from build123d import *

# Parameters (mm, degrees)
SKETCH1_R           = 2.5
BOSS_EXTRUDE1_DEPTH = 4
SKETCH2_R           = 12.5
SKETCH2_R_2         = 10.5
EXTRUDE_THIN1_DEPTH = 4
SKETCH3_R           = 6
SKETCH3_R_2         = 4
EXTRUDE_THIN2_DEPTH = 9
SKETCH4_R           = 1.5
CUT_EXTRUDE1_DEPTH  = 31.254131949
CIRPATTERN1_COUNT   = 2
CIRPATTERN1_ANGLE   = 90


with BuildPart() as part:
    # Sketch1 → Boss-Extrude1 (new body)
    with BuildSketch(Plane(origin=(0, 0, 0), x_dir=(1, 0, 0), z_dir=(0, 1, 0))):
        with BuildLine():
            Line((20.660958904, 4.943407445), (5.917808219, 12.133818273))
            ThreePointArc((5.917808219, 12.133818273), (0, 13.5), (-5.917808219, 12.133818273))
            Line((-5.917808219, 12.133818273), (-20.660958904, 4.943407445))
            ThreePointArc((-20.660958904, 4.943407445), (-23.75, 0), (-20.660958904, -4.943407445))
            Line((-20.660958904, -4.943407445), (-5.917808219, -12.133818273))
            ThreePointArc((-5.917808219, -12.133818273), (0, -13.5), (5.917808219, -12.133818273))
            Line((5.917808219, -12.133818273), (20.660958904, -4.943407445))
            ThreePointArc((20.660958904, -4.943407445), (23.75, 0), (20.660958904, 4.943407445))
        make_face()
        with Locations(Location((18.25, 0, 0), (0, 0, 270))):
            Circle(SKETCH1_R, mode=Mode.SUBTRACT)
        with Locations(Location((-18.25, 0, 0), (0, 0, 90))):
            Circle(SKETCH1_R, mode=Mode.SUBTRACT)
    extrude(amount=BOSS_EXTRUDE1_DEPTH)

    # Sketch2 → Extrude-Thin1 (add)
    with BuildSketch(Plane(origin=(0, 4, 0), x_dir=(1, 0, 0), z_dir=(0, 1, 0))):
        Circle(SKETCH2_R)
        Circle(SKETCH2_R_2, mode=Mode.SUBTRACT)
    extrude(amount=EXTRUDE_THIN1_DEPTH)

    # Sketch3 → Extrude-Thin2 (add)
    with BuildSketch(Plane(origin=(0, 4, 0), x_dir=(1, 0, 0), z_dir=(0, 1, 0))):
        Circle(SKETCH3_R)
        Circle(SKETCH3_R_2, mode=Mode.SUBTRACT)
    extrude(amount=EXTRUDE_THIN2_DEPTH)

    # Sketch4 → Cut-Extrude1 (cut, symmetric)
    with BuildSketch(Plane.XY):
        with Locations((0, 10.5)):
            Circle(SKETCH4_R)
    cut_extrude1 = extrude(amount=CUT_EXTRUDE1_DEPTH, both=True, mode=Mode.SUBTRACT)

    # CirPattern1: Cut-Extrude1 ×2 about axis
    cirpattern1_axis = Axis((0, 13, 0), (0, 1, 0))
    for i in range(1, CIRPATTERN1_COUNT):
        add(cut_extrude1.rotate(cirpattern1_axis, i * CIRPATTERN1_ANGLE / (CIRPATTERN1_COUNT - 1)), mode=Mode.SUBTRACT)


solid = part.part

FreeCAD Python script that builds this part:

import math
import FreeCAD as App
import Part
import Sketcher
from FreeCAD import Vector

doc = App.newDocument("Part")
body = doc.addObject("PartDesign::Body", "Body")

# Sketch on XZ plane
sketch1 = doc.addObject("Sketcher::SketchObject", "Sketch")
body.addObject(sketch1)
sketch1.AttachmentSupport = (doc.XZ_Plane, [""])
sketch1.MapMode = "FlatFace"
sketch1.addGeometry([
    Part.LineSegment(Vector(20.7, -4.9, 0), Vector(5.9, -12.1, 0)),  # 0
    Part.ArcOfCircle(Part.Circle(Vector(0, 0, 0), Vector(0, 0, 1), 13.5), math.radians(-116), math.radians(-64)),  # 1
    Part.LineSegment(Vector(-5.9, -12.1, 0), Vector(-20.7, -4.9, 0)),  # 2
    Part.ArcOfCircle(Part.Circle(Vector(-18.2, 0, 0), Vector(0, 0, 1), 5.5), math.radians(116), math.radians(244)),  # 3
    Part.LineSegment(Vector(-20.7, 4.9, 0), Vector(-5.9, 12.1, 0)),  # 4
    Part.ArcOfCircle(Part.Circle(Vector(0, 0, 0), Vector(0, 0, 1), 13.5), math.radians(64), math.radians(116)),  # 5
    Part.LineSegment(Vector(5.9, 12.1, 0), Vector(20.7, 4.9, 0)),  # 6
    Part.ArcOfCircle(Part.Circle(Vector(18.2, 0, 0), Vector(0, 0, 1), 5.5), math.radians(-64), math.radians(64)),  # 7
    Part.Circle(Vector(-18.2, 0, 0), Vector(0, 0, 1), 2.5),  # 8
    Part.Circle(Vector(18.2, 0, 0), Vector(0, 0, 1), 2.5),  # 9
], False)
sketch1.addConstraint([
    Sketcher.Constraint("Tangent", 0, 2, 1, 2),
    Sketcher.Constraint("Tangent", 1, 1, 2, 1),
    Sketcher.Constraint("Tangent", 2, 2, 3, 2),
    Sketcher.Constraint("Tangent", 3, 1, 4, 1),
    Sketcher.Constraint("Tangent", 4, 2, 5, 2),
    Sketcher.Constraint("Tangent", 5, 1, 6, 1),
    Sketcher.Constraint("Tangent", 6, 2, 7, 2),
    Sketcher.Constraint("Tangent", 7, 1, 0, 1),
    Sketcher.Constraint("Coincident", 1, 3, -1, 1),
    Sketcher.Constraint("Coincident", 5, 3, -1, 1),
    Sketcher.Constraint("Coincident", 8, 3, 3, 3),
    Sketcher.Constraint("Coincident", 9, 3, 7, 3),
    Sketcher.Constraint("Equal", 1, 5),
    Sketcher.Constraint("Equal", 3, 7),
    Sketcher.Constraint("Equal", 8, 9),
    Sketcher.Constraint("Symmetric", 3, 3, 7, 3, -1, 1),
    Sketcher.Constraint("PointOnObject", 3, 3, -1),
    Sketcher.Constraint("Diameter", 8, 5.0),
    Sketcher.Constraint("Radius", 1, 13.5),
    Sketcher.Constraint("Radius", 3, 5.5),
    Sketcher.Constraint("DistanceX", 3, 3, 7, 3, 36.5),
])
pad1 = doc.addObject("PartDesign::Pad", "Pad")
body.addObject(pad1)
pad1.Profile = sketch1
pad1.Length = 4
pad1.Reversed = True

# Sketch on XZ plane
sketch2 = doc.addObject("Sketcher::SketchObject", "Sketch001")
body.addObject(sketch2)
sketch2.AttachmentSupport = (doc.XZ_Plane, [""])
sketch2.MapMode = "FlatFace"
sketch2.AttachmentOffset = App.Placement(Vector(0, 0, -4), App.Rotation())
sketch2.addGeometry([
    Part.Circle(Vector(0, 0, 0), Vector(0, 0, 1), 12),
    Part.Circle(Vector(0, 0, 0), Vector(0, 0, 1), 10),
], False)
sketch2.addConstraint([
    Sketcher.Constraint("Coincident", 0, 3, -1, 1),
    Sketcher.Constraint("Coincident", 1, 3, -1, 1),
    Sketcher.Constraint("Diameter", 0, 25.0),
    Sketcher.Constraint("Diameter", 1, 21.0),
])
pad2 = doc.addObject("PartDesign::Pad", "Pad001")
body.addObject(pad2)
pad2.Profile = sketch2
pad2.Length = 4
pad2.Reversed = True

# Sketch on XZ plane
sketch3 = doc.addObject("Sketcher::SketchObject", "Sketch002")
body.addObject(sketch3)
sketch3.AttachmentSupport = (doc.XZ_Plane, [""])
sketch3.MapMode = "FlatFace"
sketch3.AttachmentOffset = App.Placement(Vector(0, 0, -4), App.Rotation())
sketch3.addGeometry([
    Part.Circle(Vector(0, 0, 0), Vector(0, 0, 1), 6),
    Part.Circle(Vector(0, 0, 0), Vector(0, 0, 1), 4),
], False)
sketch3.addConstraint([
    Sketcher.Constraint("Coincident", 0, 3, -1, 1),
    Sketcher.Constraint("Coincident", 1, 3, -1, 1),
    Sketcher.Constraint("Diameter", 0, 12.0),
    Sketcher.Constraint("Diameter", 1, 8.0),
])
pad3 = doc.addObject("PartDesign::Pad", "Pad002")
body.addObject(pad3)
pad3.Profile = sketch3
pad3.Length = 9
pad3.Reversed = True

# Sketch on XY plane
sketch4 = doc.addObject("Sketcher::SketchObject", "Sketch003")
body.addObject(sketch4)
sketch4.AttachmentSupport = (doc.XY_Plane, [""])
sketch4.MapMode = "FlatFace"
sketch4.addGeometry(Part.Circle(Vector(0, 10.5, 0), Vector(0, 0, 1), 1.5), False)
sketch4.addConstraint([
    Sketcher.Constraint("PointOnObject", 0, 3, -2),
    Sketcher.Constraint("Diameter", 0, 3.0),
    Sketcher.Constraint("DistanceY", -1, 1, 0, 3, 10.5),
])
pocket1 = doc.addObject("PartDesign::Pocket", "Pocket")
body.addObject(pocket1)
pocket1.Profile = sketch4
pocket1.Length = 62.508264
pocket1.Midplane = True
doc.recompute()

polarpattern = doc.addObject("PartDesign::PolarPattern", "PolarPattern")
body.addObject(polarpattern)
polarpattern.Originals = [pocket1]
polarpattern.Axis = (doc.Y_Axis, [""])
polarpattern.Angle = 90
polarpattern.Occurrences = 2
body.Tip = polarpattern

doc.recompute()
